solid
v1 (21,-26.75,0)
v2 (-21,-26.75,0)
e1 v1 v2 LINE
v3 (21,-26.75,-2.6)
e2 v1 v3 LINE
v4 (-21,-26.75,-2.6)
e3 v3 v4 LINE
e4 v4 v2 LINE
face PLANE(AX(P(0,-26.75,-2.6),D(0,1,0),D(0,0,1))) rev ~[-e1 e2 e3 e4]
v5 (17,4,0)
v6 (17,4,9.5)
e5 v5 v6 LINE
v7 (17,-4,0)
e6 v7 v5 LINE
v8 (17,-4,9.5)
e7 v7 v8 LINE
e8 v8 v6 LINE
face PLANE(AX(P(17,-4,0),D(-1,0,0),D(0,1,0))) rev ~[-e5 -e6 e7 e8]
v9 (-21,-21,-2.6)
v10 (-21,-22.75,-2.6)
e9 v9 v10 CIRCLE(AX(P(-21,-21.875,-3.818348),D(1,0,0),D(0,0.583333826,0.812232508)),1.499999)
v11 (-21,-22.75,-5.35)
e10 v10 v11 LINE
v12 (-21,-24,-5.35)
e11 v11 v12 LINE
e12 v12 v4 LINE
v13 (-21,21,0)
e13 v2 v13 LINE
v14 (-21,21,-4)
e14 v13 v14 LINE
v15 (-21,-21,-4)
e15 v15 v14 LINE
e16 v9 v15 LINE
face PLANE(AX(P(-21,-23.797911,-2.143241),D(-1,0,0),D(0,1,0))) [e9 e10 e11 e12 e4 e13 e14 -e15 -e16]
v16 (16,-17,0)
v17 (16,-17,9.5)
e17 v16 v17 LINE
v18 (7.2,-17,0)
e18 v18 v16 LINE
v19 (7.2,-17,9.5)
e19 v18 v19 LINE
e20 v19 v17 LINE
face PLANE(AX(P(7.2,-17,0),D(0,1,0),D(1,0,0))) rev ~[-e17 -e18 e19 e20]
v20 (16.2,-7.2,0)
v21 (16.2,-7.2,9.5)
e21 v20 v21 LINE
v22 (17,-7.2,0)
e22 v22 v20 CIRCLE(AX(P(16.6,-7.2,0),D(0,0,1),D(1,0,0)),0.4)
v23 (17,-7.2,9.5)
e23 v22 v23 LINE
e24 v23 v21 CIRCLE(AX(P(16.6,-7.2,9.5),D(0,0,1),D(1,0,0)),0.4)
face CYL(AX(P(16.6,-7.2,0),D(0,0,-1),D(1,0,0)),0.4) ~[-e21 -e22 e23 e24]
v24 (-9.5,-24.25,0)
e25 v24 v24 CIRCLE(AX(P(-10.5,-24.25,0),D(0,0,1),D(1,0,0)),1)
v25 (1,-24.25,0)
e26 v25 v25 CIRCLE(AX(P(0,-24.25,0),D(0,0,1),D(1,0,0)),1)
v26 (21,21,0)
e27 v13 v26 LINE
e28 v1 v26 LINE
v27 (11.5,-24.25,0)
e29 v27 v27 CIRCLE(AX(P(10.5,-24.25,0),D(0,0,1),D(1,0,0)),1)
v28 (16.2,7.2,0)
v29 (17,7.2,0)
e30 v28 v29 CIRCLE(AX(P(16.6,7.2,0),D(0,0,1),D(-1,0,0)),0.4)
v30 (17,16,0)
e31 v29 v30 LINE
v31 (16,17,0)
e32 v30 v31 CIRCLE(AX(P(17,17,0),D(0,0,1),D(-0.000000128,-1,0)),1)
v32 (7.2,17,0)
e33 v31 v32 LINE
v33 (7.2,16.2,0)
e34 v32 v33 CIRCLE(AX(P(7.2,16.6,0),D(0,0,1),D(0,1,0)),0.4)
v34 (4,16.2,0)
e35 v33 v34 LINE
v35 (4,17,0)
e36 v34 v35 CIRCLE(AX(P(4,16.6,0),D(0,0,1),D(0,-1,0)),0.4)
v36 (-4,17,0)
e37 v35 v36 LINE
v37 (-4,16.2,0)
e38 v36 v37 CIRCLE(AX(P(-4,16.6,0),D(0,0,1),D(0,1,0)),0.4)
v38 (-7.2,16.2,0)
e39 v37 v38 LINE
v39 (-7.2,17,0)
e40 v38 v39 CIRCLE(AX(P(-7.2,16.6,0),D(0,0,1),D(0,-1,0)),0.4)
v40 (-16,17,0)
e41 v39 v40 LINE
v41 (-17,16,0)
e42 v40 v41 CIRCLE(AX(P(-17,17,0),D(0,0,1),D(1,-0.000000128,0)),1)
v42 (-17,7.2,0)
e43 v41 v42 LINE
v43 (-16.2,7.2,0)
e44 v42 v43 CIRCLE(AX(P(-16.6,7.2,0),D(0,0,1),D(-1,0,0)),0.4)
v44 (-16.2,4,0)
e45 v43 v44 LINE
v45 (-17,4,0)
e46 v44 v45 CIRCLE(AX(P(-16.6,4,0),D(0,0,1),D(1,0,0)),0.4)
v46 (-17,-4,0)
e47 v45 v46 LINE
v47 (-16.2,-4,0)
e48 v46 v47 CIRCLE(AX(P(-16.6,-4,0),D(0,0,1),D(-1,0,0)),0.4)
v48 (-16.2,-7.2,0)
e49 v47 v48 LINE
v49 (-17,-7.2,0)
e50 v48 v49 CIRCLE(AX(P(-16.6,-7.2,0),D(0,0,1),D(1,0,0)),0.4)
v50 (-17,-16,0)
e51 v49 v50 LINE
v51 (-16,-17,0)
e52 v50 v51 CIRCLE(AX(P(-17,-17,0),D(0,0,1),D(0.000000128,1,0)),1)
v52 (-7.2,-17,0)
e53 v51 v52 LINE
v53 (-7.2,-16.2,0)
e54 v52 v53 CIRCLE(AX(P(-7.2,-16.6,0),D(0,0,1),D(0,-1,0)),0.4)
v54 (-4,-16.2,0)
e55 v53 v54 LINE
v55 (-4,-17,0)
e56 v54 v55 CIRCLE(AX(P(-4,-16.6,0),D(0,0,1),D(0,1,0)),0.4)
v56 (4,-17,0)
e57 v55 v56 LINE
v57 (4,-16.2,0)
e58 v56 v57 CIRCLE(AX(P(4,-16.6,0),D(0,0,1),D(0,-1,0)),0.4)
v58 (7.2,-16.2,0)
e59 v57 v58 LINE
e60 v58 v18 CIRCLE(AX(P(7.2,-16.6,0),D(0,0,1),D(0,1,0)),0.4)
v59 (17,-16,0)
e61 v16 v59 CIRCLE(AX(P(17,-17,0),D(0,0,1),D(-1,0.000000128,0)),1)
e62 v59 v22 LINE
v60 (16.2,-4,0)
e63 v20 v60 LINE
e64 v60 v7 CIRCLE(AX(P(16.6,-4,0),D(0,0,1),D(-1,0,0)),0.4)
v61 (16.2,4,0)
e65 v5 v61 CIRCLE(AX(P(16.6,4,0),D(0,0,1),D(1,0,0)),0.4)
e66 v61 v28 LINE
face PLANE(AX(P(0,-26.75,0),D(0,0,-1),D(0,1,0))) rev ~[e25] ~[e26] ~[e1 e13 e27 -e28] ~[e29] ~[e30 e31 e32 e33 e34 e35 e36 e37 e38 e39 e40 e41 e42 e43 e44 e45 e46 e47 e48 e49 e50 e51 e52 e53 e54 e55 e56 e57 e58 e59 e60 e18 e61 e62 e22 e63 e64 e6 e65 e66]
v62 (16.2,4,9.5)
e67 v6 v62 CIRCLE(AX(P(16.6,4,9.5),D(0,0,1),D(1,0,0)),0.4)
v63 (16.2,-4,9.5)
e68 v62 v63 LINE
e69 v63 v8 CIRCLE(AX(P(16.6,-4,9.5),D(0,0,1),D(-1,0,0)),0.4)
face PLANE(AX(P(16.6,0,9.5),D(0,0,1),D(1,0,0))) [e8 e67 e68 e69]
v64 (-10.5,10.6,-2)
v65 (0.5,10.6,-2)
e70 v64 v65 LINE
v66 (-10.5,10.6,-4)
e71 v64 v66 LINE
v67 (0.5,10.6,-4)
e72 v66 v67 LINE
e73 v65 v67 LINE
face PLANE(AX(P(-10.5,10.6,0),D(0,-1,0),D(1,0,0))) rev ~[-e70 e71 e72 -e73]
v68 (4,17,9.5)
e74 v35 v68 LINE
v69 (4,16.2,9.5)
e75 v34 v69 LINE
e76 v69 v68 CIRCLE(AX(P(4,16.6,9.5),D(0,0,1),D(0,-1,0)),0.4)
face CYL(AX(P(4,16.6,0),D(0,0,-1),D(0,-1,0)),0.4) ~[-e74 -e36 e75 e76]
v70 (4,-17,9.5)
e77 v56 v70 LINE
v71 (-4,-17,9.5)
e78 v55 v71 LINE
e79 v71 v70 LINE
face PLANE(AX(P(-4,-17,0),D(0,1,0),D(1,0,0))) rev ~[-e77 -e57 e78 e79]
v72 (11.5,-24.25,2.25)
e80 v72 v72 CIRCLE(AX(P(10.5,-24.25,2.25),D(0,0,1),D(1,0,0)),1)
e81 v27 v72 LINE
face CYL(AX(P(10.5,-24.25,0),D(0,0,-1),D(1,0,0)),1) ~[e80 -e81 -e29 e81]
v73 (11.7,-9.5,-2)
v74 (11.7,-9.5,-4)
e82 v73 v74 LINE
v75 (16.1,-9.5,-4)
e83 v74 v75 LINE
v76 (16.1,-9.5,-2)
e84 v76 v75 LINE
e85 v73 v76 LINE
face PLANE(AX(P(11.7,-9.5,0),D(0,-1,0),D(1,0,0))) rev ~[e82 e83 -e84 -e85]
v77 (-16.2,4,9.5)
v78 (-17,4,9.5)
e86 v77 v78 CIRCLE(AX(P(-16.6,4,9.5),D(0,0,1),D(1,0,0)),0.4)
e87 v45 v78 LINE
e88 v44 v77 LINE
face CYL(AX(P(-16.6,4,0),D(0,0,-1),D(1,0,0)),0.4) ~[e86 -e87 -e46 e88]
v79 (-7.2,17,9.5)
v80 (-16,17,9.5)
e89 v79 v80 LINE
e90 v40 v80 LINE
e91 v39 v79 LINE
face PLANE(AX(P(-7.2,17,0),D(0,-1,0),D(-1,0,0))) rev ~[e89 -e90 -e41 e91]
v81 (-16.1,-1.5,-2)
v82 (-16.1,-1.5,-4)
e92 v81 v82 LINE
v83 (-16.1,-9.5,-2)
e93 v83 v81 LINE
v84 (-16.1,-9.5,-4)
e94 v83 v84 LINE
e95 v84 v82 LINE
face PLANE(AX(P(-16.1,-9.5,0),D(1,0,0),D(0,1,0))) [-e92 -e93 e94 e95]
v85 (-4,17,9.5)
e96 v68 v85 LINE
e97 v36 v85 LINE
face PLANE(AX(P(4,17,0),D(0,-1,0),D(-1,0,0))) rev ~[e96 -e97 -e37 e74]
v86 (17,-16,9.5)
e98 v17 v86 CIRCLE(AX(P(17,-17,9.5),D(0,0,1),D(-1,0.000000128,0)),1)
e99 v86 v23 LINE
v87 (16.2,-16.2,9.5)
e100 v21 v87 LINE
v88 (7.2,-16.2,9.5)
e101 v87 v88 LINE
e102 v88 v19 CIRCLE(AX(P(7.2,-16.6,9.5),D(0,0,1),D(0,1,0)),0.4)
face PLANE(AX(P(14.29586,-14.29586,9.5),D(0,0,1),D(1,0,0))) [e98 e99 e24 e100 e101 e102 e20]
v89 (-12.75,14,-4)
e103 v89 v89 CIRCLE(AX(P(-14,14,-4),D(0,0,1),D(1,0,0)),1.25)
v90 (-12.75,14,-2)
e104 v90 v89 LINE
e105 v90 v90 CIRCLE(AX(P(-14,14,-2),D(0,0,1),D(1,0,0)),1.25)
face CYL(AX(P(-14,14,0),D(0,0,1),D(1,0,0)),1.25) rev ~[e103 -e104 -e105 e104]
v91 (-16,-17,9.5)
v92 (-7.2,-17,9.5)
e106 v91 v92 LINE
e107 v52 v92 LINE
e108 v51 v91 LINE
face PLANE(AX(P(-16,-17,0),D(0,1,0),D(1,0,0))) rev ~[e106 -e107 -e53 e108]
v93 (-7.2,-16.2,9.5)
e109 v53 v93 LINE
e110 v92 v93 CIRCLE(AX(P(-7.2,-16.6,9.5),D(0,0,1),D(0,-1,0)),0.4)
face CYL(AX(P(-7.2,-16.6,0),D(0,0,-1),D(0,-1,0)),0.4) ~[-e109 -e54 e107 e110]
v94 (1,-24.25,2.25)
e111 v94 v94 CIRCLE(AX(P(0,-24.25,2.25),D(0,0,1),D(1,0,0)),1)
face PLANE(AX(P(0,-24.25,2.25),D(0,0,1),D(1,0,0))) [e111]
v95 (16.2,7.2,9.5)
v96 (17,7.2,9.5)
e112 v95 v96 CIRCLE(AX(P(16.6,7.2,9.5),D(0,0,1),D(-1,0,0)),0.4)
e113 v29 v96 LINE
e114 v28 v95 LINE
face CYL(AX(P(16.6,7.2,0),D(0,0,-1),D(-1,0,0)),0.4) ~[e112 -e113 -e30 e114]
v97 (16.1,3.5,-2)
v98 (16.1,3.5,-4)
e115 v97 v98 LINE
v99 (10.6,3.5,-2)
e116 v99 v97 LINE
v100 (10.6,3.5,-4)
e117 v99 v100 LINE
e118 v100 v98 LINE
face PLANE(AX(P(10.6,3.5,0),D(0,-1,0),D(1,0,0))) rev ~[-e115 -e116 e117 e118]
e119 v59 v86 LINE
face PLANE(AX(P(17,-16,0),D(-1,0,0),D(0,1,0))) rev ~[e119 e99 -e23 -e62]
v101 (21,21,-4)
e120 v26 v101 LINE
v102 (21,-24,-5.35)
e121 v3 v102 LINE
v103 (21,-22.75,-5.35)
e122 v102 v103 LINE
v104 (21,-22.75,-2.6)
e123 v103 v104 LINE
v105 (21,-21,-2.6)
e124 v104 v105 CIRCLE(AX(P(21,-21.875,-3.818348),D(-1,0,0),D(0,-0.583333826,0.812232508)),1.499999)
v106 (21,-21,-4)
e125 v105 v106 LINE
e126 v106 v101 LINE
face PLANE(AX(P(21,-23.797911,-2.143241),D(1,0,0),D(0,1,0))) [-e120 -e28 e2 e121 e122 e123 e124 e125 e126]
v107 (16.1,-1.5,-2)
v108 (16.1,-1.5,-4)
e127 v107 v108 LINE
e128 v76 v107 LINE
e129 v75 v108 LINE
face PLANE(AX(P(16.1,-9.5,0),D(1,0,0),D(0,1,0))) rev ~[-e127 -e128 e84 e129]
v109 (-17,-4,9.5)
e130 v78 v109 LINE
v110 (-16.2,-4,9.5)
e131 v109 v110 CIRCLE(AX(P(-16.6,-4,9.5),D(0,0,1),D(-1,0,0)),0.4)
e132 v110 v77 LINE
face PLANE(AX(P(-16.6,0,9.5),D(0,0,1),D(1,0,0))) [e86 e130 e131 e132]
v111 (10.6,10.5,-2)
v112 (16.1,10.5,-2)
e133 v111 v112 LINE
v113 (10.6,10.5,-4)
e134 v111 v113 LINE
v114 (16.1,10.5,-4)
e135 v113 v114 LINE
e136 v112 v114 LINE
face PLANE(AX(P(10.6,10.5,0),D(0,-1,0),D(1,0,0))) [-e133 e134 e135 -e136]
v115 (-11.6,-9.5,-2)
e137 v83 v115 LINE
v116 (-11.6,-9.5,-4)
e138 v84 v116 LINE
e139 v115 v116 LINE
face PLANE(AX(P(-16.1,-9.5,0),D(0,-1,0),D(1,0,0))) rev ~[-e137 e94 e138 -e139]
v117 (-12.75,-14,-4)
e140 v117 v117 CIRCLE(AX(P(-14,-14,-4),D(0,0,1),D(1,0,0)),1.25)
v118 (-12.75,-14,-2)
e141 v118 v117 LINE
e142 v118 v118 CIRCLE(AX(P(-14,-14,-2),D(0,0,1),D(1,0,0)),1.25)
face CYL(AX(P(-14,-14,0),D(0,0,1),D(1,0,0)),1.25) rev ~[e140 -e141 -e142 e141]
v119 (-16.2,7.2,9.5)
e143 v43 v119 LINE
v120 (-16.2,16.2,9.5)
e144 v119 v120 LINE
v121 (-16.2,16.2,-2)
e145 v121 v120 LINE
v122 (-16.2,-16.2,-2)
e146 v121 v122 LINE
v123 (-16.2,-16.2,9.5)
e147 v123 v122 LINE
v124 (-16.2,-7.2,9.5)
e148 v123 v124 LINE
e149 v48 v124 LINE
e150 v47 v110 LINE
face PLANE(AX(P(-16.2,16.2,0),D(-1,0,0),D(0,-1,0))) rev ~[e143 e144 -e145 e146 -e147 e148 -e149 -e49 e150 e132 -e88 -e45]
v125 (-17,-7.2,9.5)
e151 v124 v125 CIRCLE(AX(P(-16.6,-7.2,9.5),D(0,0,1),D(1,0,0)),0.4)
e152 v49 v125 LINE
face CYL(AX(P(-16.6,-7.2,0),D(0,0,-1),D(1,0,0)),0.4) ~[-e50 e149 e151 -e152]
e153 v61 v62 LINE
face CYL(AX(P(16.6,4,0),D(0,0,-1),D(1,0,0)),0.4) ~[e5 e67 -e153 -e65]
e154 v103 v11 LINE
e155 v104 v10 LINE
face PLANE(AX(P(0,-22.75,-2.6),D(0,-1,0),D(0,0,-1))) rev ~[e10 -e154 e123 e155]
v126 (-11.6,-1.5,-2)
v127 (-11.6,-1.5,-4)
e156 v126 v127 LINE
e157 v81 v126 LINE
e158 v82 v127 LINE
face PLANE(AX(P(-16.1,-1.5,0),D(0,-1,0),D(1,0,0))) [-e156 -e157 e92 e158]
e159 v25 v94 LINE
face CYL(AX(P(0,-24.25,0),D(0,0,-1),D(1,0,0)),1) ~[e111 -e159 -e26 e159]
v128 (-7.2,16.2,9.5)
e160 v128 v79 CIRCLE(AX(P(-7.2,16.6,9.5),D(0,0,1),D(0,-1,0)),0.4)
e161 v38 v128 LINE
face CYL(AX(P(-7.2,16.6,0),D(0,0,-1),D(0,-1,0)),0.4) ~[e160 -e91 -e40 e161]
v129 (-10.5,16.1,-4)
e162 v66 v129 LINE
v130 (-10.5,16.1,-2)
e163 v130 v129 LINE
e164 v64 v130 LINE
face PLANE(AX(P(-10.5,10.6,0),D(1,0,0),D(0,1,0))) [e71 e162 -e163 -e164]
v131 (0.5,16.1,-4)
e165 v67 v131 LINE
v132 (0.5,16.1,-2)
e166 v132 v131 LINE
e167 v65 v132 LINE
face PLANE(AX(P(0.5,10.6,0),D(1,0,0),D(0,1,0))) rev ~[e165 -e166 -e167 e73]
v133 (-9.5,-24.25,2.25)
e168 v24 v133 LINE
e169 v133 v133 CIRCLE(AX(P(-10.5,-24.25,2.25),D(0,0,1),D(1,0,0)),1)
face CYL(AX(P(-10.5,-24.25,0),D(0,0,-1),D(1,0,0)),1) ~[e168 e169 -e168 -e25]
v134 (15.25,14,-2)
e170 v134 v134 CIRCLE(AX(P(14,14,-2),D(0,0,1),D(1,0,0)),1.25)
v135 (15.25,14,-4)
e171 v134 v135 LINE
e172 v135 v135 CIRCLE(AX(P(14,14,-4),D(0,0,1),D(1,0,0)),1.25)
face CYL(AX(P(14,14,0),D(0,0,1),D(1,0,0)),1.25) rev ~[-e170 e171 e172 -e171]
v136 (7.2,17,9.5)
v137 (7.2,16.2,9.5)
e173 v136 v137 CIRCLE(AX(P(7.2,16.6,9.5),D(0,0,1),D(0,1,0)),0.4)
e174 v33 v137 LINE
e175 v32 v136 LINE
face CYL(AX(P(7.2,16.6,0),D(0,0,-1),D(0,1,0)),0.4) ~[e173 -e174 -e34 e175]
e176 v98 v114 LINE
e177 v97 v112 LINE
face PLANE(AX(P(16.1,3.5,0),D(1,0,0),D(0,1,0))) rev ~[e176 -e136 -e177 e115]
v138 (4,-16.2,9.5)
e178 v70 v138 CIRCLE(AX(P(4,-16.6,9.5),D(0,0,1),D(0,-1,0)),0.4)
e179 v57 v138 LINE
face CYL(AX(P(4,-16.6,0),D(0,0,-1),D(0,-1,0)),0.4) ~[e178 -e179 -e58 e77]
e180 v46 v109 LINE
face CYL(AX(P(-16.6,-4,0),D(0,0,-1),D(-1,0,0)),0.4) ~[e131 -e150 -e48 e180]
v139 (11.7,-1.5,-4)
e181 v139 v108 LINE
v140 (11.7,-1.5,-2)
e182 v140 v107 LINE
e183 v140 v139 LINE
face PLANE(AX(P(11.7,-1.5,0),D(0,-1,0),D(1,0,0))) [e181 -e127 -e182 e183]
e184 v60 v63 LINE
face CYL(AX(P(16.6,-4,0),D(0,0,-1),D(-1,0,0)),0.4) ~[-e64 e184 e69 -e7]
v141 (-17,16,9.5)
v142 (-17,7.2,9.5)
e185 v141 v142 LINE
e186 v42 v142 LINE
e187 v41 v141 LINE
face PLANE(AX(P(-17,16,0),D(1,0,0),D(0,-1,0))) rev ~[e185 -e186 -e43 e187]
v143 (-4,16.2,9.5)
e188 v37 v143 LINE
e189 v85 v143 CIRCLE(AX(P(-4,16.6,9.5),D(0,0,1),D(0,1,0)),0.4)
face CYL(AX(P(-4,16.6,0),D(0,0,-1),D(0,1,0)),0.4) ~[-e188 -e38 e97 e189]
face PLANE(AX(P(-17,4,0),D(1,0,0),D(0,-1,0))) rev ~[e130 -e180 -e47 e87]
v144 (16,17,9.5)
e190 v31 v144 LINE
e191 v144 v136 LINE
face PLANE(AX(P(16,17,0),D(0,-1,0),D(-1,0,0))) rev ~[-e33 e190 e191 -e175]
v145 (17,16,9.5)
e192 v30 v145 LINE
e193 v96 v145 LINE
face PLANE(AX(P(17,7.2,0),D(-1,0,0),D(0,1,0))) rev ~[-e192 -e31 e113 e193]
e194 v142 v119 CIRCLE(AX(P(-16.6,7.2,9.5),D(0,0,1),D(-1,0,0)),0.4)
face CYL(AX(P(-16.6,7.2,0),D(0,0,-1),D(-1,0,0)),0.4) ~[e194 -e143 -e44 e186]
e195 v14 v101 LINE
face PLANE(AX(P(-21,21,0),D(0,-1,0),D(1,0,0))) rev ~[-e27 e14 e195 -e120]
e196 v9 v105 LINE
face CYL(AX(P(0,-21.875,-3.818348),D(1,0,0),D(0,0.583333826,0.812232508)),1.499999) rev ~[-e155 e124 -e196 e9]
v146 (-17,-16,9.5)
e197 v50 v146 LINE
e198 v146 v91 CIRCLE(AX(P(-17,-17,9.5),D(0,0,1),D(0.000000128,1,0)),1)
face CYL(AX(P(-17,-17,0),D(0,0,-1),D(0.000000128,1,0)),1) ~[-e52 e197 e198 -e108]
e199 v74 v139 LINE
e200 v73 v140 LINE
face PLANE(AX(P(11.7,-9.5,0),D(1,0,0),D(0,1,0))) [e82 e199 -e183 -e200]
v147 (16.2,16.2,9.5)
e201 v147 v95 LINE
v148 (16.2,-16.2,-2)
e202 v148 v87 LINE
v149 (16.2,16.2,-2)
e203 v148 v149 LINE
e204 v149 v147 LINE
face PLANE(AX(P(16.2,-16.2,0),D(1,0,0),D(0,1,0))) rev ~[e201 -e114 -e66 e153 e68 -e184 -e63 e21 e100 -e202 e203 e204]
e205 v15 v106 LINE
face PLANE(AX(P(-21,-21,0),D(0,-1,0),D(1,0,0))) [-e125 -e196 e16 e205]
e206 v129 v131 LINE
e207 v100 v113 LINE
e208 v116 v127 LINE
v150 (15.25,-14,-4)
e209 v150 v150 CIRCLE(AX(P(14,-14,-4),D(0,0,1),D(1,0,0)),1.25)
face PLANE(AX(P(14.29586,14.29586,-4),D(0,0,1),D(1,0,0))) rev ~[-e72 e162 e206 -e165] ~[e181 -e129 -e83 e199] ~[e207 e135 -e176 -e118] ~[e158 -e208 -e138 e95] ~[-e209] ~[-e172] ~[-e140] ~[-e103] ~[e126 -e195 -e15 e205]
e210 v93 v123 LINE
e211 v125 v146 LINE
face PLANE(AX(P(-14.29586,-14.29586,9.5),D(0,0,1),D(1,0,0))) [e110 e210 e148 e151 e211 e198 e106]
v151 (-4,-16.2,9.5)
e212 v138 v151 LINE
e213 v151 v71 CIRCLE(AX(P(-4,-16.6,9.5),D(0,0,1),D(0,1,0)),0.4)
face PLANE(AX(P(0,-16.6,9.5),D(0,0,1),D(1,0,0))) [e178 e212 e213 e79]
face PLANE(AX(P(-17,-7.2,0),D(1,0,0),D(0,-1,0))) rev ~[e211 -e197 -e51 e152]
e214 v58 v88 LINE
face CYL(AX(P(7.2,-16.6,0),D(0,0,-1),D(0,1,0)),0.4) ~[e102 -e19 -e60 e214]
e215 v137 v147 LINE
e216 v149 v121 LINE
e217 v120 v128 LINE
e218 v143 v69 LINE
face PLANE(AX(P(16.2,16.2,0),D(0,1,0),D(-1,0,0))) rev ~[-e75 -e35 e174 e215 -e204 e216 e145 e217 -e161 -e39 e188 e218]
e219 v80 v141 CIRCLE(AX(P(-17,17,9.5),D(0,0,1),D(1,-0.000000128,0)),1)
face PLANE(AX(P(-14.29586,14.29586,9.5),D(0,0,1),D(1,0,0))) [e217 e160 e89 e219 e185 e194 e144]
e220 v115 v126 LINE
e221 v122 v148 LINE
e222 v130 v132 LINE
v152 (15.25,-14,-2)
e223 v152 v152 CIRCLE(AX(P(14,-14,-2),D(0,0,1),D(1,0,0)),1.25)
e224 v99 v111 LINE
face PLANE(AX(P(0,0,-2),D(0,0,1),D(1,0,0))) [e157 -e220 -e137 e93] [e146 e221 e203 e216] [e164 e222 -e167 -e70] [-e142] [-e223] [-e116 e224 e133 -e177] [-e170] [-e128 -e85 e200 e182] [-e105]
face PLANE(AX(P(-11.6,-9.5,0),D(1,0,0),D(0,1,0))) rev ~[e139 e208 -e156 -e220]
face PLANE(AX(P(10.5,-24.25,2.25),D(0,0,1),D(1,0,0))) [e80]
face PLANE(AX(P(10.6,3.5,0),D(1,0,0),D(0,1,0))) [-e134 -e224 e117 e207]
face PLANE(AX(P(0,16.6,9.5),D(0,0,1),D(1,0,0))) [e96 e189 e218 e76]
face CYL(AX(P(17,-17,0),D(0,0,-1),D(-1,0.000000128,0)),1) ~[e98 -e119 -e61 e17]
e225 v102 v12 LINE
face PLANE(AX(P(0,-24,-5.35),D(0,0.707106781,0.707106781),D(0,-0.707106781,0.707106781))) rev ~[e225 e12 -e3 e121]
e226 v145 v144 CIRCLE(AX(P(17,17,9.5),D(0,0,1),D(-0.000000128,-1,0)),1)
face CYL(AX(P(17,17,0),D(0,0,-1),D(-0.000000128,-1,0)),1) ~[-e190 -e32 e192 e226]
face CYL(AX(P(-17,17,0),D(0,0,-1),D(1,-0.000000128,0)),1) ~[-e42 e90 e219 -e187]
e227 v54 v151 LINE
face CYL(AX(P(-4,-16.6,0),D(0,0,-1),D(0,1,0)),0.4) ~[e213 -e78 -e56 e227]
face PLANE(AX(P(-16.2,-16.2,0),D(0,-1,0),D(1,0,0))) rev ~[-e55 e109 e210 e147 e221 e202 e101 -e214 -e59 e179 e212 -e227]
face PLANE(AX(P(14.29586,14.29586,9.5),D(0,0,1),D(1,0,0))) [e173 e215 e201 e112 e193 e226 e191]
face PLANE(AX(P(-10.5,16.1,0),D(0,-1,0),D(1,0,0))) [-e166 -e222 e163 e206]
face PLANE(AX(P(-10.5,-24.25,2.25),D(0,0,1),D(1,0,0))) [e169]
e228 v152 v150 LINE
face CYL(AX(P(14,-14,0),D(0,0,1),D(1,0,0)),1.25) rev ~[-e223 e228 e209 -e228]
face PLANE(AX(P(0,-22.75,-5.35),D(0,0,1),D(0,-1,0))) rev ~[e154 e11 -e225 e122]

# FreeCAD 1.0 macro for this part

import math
import FreeCAD as App
import Part
import Sketcher

V = App.Vector
Q = App.Units.Quantity

doc = App.newDocument("Part")
body = doc.addObject("PartDesign::Body", "Body")

sketch1 = body.newObject("Sketcher::SketchObject", "Sketch")
sketch1.AttachmentSupport = (doc.getObject("XY_Plane"), [""])
sketch1.MapMode = "FlatFace"
sketch1.addGeometry([
    Part.LineSegment(V(-21, 21, 0), V(-21, -21, 0)),
    Part.LineSegment(V(-21, -21, 0), V(21, -21, 0)),
    Part.LineSegment(V(21, -21, 0), V(21, 21, 0)),
    Part.LineSegment(V(21, 21, 0), V(-21, 21, 0)),
    Part.Circle(V(-14, -14, 0), V(0, 0, 1), 1.25),
    Part.LineSegment(V(-11.6, -9.5, 0), V(-16.1, -9.5, 0)),
    Part.LineSegment(V(-16.1, -9.5, 0), V(-16.1, -1.5, 0)),
    Part.LineSegment(V(-16.1, -1.5, 0), V(-11.6, -1.5, 0)),
    Part.LineSegment(V(-11.6, -1.5, 0), V(-11.6, -9.5, 0)),
    Part.Circle(V(14, -14, 0), V(0, 0, 1), 1.25),
    Part.LineSegment(V(16.1, -9.5, 0), V(11.7, -9.5, 0)),
    Part.LineSegment(V(11.7, -9.5, 0), V(11.7, -1.5, 0)),
    Part.LineSegment(V(11.7, -1.5, 0), V(16.1, -1.5, 0)),
    Part.LineSegment(V(16.1, -1.5, 0), V(16.1, -9.5, 0)),
    Part.Circle(V(-14, 14, 0), V(0, 0, 1), 1.25),
    Part.LineSegment(V(0.5, 10.6, 0), V(-10.5, 10.6, 0)),
    Part.LineSegment(V(-10.5, 10.6, 0), V(-10.5, 16.1, 0)),
    Part.LineSegment(V(-10.5, 16.1, 0), V(0.5, 16.1, 0)),
    Part.LineSegment(V(0.5, 16.1, 0), V(0.5, 10.6, 0)),
    Part.LineSegment(V(16.1, 3.5, 0), V(10.6, 3.5, 0)),
    Part.LineSegment(V(10.6, 3.5, 0), V(10.6, 10.5, 0)),
    Part.LineSegment(V(10.6, 10.5, 0), V(16.1, 10.5, 0)),
    Part.LineSegment(V(16.1, 10.5, 0), V(16.1, 3.5, 0)),
    Part.Circle(V(14, 14, 0), V(0, 0, 1), 1.25),
], False)
sketch1.addConstraint([
    Sketcher.Constraint("Coincident", 0, 2, 1, 1),
    Sketcher.Constraint("Coincident", 1, 2, 2, 1),
    Sketcher.Constraint("Coincident", 2, 2, 3, 1),
    Sketcher.Constraint("Coincident", 3, 2, 0, 1),
    Sketcher.Constraint("Coincident", 5, 2, 6, 1),
    Sketcher.Constraint("Coincident", 6, 2, 7, 1),
    Sketcher.Constraint("Coincident", 7, 2, 8, 1),
    Sketcher.Constraint("Coincident", 8, 2, 5, 1),
    Sketcher.Constraint("Coincident", 10, 2, 11, 1),
    Sketcher.Constraint("Coincident", 11, 2, 12, 1),
    Sketcher.Constraint("Coincident", 12, 2, 13, 1),
    Sketcher.Constraint("Coincident", 13, 2, 10, 1),
    Sketcher.Constraint("Coincident", 15, 2, 16, 1),
    Sketcher.Constraint("Coincident", 16, 2, 17, 1),
    Sketcher.Constraint("Coincident", 17, 2, 18, 1),
    Sketcher.Constraint("Coincident", 18, 2, 15, 1),
    Sketcher.Constraint("Coincident", 19, 2, 20, 1),
    Sketcher.Constraint("Coincident", 20, 2, 21, 1),
    Sketcher.Constraint("Coincident", 21, 2, 22, 1),
    Sketcher.Constraint("Coincident", 22, 2, 19, 1),
    Sketcher.Constraint("Vertical", 0),
    Sketcher.Constraint("Horizontal", 1),
    Sketcher.Constraint("Vertical", 2),
    Sketcher.Constraint("Horizontal", 3),
    Sketcher.Constraint("Horizontal", 5),
    Sketcher.Constraint("Vertical", 6),
    Sketcher.Constraint("Horizontal", 7),
    Sketcher.Constraint("Vertical", 8),
    Sketcher.Constraint("Horizontal", 10),
    Sketcher.Constraint("Vertical", 11),
    Sketcher.Constraint("Horizontal", 12),
    Sketcher.Constraint("Vertical", 13),
    Sketcher.Constraint("Horizontal", 15),
    Sketcher.Constraint("Vertical", 16),
    Sketcher.Constraint("Horizontal", 17),
    Sketcher.Constraint("Vertical", 18),
    Sketcher.Constraint("Horizontal", 19),
    Sketcher.Constraint("Vertical", 20),
    Sketcher.Constraint("Horizontal", 21),
    Sketcher.Constraint("Vertical", 22),
    Sketcher.Constraint("Equal", 4, 9),
    Sketcher.Constraint("Equal", 9, 14),
    Sketcher.Constraint("Equal", 14, 23),
    Sketcher.Constraint("Symmetric", 9, 3, 14, 3, -1, 1),
    Sketcher.Constraint("Symmetric", 4, 3, 23, 3, -1, 1),
    Sketcher.Constraint("Symmetric", 0, 2, 2, 2, -1, 1),
    Sketcher.Constraint("Symmetric", 4, 3, 9, 3, -2),
    Sketcher.Constraint("Symmetric", 6, 2, 12, 2, -2),
    Sketcher.Constraint("Horizontal", 8, 2, 10, 2),
    Sketcher.Constraint("Vertical", 13, 2, 21, 2),
    Sketcher.Constraint("Equal", 3, 0),
    Sketcher.Constraint("Equal", 21, 16),
    Sketcher.Constraint("Diameter", 4, 2.5),
    Sketcher.Constraint("DistanceX", 1, 1, 1, 2, 42.0),
    Sketcher.Constraint("DistanceX", 15, 2, 15, 1, 11.0),
    Sketcher.Constraint("DistanceY", 6, 1, 6, 2, 8.0),
    Sketcher.Constraint("DistanceY", 20, 1, 20, 2, 7.0),
    Sketcher.Constraint("DistanceX", 5, 2, 5, 1, 4.5),
    Sketcher.Constraint("DistanceX", 10, 2, 10, 1, 4.4),
    Sketcher.Constraint("DistanceX", 19, 2, 19, 1, 5.5),
    Sketcher.Constraint("DistanceX", 4, 3, -1, 1, 14.0),
    Sketcher.Constraint("DistanceY", 4, 3, -1, 1, 14.0),
    Sketcher.Constraint("DistanceY", 11, 2, 19, 2, 5.0),
    Sketcher.Constraint("DistanceX", 5, 2, -1, 1, 16.1),
    Sketcher.Constraint("DistanceY", 5, 2, -1, 1, 9.5),
    Sketcher.Constraint("DistanceX", 15, 2, -1, 1, 10.5),
    Sketcher.Constraint("DistanceY", -1, 1, 15, 2, 10.6),
])
pad1 = body.newObject("PartDesign::Pad", "Pad")
pad1.Profile = sketch1
pad1.Length = 4
pad1.Reversed = True

sketch2 = body.newObject("Sketcher::SketchObject", "Sketch001")
sketch2.AttachmentSupport = (doc.getObject("YZ_Plane"), [""])
sketch2.MapMode = "FlatFace"
sketch2.addGeometry([
    Part.LineSegment(V(-21, -2.6, 0), V(-21, 0, 0)),
    Part.LineSegment(V(-21, 0, 0), V(-26.75, 0, 0)),
    Part.LineSegment(V(-26.75, 0, 0), V(-26.75, -2.6, 0)),
    Part.LineSegment(V(-26.75, -2.6, 0), V(-24, -5.35, 0)),
    Part.LineSegment(V(-24, -5.35, 0), V(-22.75, -5.35, 0)),
    Part.LineSegment(V(-22.75, -5.35, 0), V(-22.75, -2.6, 0)),
    Part.ArcOfCircle(Part.Circle(V(-21.875, -3.818348, 0), V(0, 0, 1), 1.499999), math.radians(54.314631), math.radians(125.685369)),
], False)
sketch2.addConstraint([
    Sketcher.Constraint("Coincident", 0, 2, 1, 1),
    Sketcher.Constraint("Coincident", 1, 2, 2, 1),
    Sketcher.Constraint("Coincident", 2, 2, 3, 1),
    Sketcher.Constraint("Coincident", 3, 2, 4, 1),
    Sketcher.Constraint("Coincident", 4, 2, 5, 1),
    Sketcher.Constraint("Coincident", 5, 2, 6, 2),
    Sketcher.Constraint("Coincident", 6, 1, 0, 1),
    Sketcher.Constraint("Vertical", 0),
    Sketcher.Constraint("Horizontal", 1),
    Sketcher.Constraint("Vertical", 2),
    Sketcher.Constraint("Horizontal", 4),
    Sketcher.Constraint("Vertical", 5),
    Sketcher.Constraint("PointOnObject", 0, 2, -1),
    Sketcher.Constraint("Horizontal", 2, 2, 5, 2),
    Sketcher.Constraint("Horizontal", 5, 2, 6, 1),
    Sketcher.Constraint("Radius", 6, 1.499999),
    Sketcher.Constraint("Angle", 3, Q("-45 deg")),
    Sketcher.Constraint("DistanceY", 0, 1, 0, 2, 2.6),
    Sketcher.Constraint("DistanceX", 0, 2, -1, 1, 21.0),
    Sketcher.Constraint("DistanceX", 3, 2, -1, 1, 24.0),
    Sketcher.Constraint("DistanceX", 2, 2, 4, 2, 4.0),
    Sketcher.Constraint("DistanceX", 1, 2, 1, 1, 5.75),
])
pad2 = body.newObject("PartDesign::Pad", "Pad001")
pad2.Profile = sketch2
pad2.Length = 21

sketch3 = body.newObject("Sketcher::SketchObject", "Sketch002")
sketch3.AttachmentSupport = (doc.getObject("YZ_Plane"), [""])
sketch3.MapMode = "FlatFace"
sketch3.addGeometry([
    Part.LineSegment(V(-21, 0, 0), V(-21, -2.6, 0)),
    Part.ArcOfCircle(Part.Circle(V(-21.875, -3.818348, 0), V(0, 0, 1), 1.499999), math.radians(54.314631), math.radians(125.685369)),
    Part.LineSegment(V(-22.75, -2.6, 0), V(-22.75, -5.35, 0)),
    Part.LineSegment(V(-22.75, -5.35, 0), V(-24, -5.35, 0)),
    Part.LineSegment(V(-24, -5.35, 0), V(-26.75, -2.6, 0)),
    Part.LineSegment(V(-26.75, -2.6, 0), V(-26.75, 0, 0)),
    Part.LineSegment(V(-26.75, 0, 0), V(-21, 0, 0)),
], False)
sketch3.addConstraint([
    Sketcher.Constraint("Coincident", 0, 2, 1, 1),
    Sketcher.Constraint("Coincident", 1, 2, 2, 1),
    Sketcher.Constraint("Coincident", 2, 2, 3, 1),
    Sketcher.Constraint("Coincident", 3, 2, 4, 1),
    Sketcher.Constraint("Coincident", 4, 2, 5, 1),
    Sketcher.Constraint("Coincident", 5, 2, 6, 1),
    Sketcher.Constraint("Coincident", 6, 2, 0, 1),
    Sketcher.Constraint("Vertical", 0),
    Sketcher.Constraint("Vertical", 2),
    Sketcher.Constraint("Horizontal", 3),
    Sketcher.Constraint("Vertical", 5),
    Sketcher.Constraint("Horizontal", 6),
    Sketcher.Constraint("PointOnObject", 5, 2, -1),
    Sketcher.Constraint("Horizontal", 0, 2, 1, 2),
    Sketcher.Constraint("Horizontal", 1, 2, 4, 2),
    Sketcher.Constraint("Radius", 1, 1.499999),
    Sketcher.Constraint("Angle", 4, Q("135 deg")),
    Sketcher.Constraint("DistanceY", 0, 2, 0, 1, 2.6),
    Sketcher.Constraint("DistanceX", 0, 2, -1, 1, 21.0),
    Sketcher.Constraint("DistanceX", 3, 2, -1, 1, 24.0),
    Sketcher.Constraint("DistanceX", 4, 2, 1, 2, 4.0),
    Sketcher.Constraint("DistanceX", 3, 2, 3, 1, 1.25),
])
pad3 = body.newObject("PartDesign::Pad", "Pad002")
pad3.Profile = sketch3
pad3.Length = 21
pad3.Reversed = True

sketch4 = body.newObject("Sketcher::SketchObject", "Sketch003")
sketch4.AttachmentSupport = (doc.getObject("XY_Plane"), [""])
sketch4.MapMode = "FlatFace"
sketch4.addGeometry([
    Part.LineSegment(V(-16.2, 16.2, 0), V(-7.2, 16.2, 0)),
    Part.ArcOfCircle(Part.Circle(V(-7.2, 16.6, 0), V(0, 0, 1), 0.4), math.radians(-90), math.radians(90)),
    Part.LineSegment(V(-7.2, 17, 0), V(-16, 17, 0)),
    Part.ArcOfCircle(Part.Circle(V(-17, 17, 0), V(0, 0, 1), 1), math.radians(-0.000007), math.radians(270.000007)),
    Part.LineSegment(V(-17, 16, 0), V(-17, 7.2, 0)),
    Part.ArcOfCircle(Part.Circle(V(-16.6, 7.2, 0), V(0, 0, 1), 0.4), math.radians(180), math.radians(360)),
    Part.LineSegment(V(-16.2, 7.2, 0), V(-16.2, 16.2, 0)),
    Part.LineSegment(V(-16.2, -4, 0), V(-16.2, 4, 0)),
    Part.ArcOfCircle(Part.Circle(V(-16.6, 4, 0), V(0, 0, 1), 0.4), math.radians(0), math.radians(180)),
    Part.LineSegment(V(-17, 4, 0), V(-17, -4, 0)),
    Part.ArcOfCircle(Part.Circle(V(-16.6, -4, 0), V(0, 0, 1), 0.4), math.radians(180), math.radians(360)),
    Part.ArcOfCircle(Part.Circle(V(-7.2, -16.6, 0), V(0, 0, 1), 0.4), math.radians(-90), math.radians(90)),
    Part.LineSegment(V(-7.2, -16.2, 0), V(-16.2, -16.2, 0)),
    Part.LineSegment(V(-16.2, -16.2, 0), V(-16.2, -7.2, 0)),
    Part.ArcOfCircle(Part.Circle(V(-16.6, -7.2, 0), V(0, 0, 1), 0.4), math.radians(0), math.radians(180)),
    Part.LineSegment(V(-17, -7.2, 0), V(-17, -16, 0)),
    Part.ArcOfCircle(Part.Circle(V(-17, -17, 0), V(0, 0, 1), 1), math.radians(89.999993), math.radians(360.000007)),
    Part.LineSegment(V(-16, -17, 0), V(-7.2, -17, 0)),
    Part.LineSegment(V(-4, 16.2, 0), V(4, 16.2, 0)),
    Part.ArcOfCircle(Part.Circle(V(4, 16.6, 0), V(0, 0, 1), 0.4), math.radians(-90), math.radians(90)),
    Part.LineSegment(V(4, 17, 0), V(-4, 17, 0)),
    Part.ArcOfCircle(Part.Circle(V(-4, 16.6, 0), V(0, 0, 1), 0.4), math.radians(90), math.radians(270)),
    Part.LineSegment(V(16.2, 16.2, 0), V(16.2, 7.2, 0)),
    Part.ArcOfCircle(Part.Circle(V(16.6, 7.2, 0), V(0, 0, 1), 0.4), math.radians(180), math.radians(360)),
    Part.LineSegment(V(17, 7.2, 0), V(17, 16, 0)),
    Part.ArcOfCircle(Part.Circle(V(17, 17, 0), V(0, 0, 1), 1), math.radians(-90.000007), math.radians(180.000007)),
    Part.LineSegment(V(16, 17, 0), V(7.2, 17, 0)),
    Part.ArcOfCircle(Part.Circle(V(7.2, 16.6, 0), V(0, 0, 1), 0.4), math.radians(90), math.radians(270)),
    Part.LineSegment(V(7.2, 16.2, 0), V(16.2, 16.2, 0)),
    Part.LineSegment(V(17, -4, 0), V(17, 4, 0)),
    Part.ArcOfCircle(Part.Circle(V(16.6, 4, 0), V(0, 0, 1), 0.4), math.radians(0), math.radians(180)),
    Part.LineSegment(V(16.2, 4, 0), V(16.2, -4, 0)),
    Part.ArcOfCircle(Part.Circle(V(16.6, -4, 0), V(0, 0, 1), 0.4), math.radians(180), math.radians(360)),
    Part.ArcOfCircle(Part.Circle(V(4, -16.6, 0), V(0, 0, 1), 0.4), math.radians(-90), math.radians(90)),
    Part.LineSegment(V(4, -16.2, 0), V(-4, -16.2, 0)),
    Part.ArcOfCircle(Part.Circle(V(-4, -16.6, 0), V(0, 0, 1), 0.4), math.radians(90), math.radians(270)),
    Part.LineSegment(V(-4, -17, 0), V(4, -17, 0)),
    Part.ArcOfCircle(Part.Circle(V(16.6, -7.2, 0), V(0, 0, 1), 0.4), math.radians(0), math.radians(180)),
    Part.LineSegment(V(16.2, -7.2, 0), V(16.2, -16.2, 0)),
    Part.LineSegment(V(16.2, -16.2, 0), V(7.2, -16.2, 0)),
    Part.ArcOfCircle(Part.Circle(V(7.2, -16.6, 0), V(0, 0, 1), 0.4), math.radians(90), math.radians(270)),
    Part.LineSegment(V(7.2, -17, 0), V(16, -17, 0)),
    Part.ArcOfCircle(Part.Circle(V(17, -17, 0), V(0, 0, 1), 1), math.radians(179.999993), math.radians(450.000007)),
    Part.LineSegment(V(17, -16, 0), V(17, -7.2, 0)),
], False)
sketch4.addConstraint([
    Sketcher.Constraint("Tangent", 0, 2, 1, 1),
    Sketcher.Constraint("Tangent", 1, 2, 2, 1),
    Sketcher.Constraint("Coincident", 2, 2, 3, 1),
    Sketcher.Constraint("Coincident", 3, 2, 4, 1),
    Sketcher.Constraint("Tangent", 4, 2, 5, 1),
    Sketcher.Constraint("Tangent", 5, 2, 6, 1),
    Sketcher.Constraint("Coincident", 6, 2, 0, 1),
    Sketcher.Constraint("Tangent", 7, 2, 8, 1),
    Sketcher.Constraint("Tangent", 8, 2, 9, 1),
    Sketcher.Constraint("Tangent", 9, 2, 10, 1),
    Sketcher.Constraint("Tangent", 10, 2, 7, 1),
    Sketcher.Constraint("Tangent", 11, 2, 12, 1),
    Sketcher.Constraint("Coincident", 12, 2, 13, 1),
    Sketcher.Constraint("Tangent", 13, 2, 14, 1),
    Sketcher.Constraint("Tangent", 14, 2, 15, 1),
    Sketcher.Constraint("Coincident", 15, 2, 16, 1),
    Sketcher.Constraint("Coincident", 16, 2, 17, 1),
    Sketcher.Constraint("Tangent", 17, 2, 11, 1),
    Sketcher.Constraint("Tangent", 18, 2, 19, 1),
    Sketcher.Constraint("Tangent", 19, 2, 20, 1),
    Sketcher.Constraint("Tangent", 20, 2, 21, 1),
    Sketcher.Constraint("Tangent", 21, 2, 18, 1),
    Sketcher.Constraint("Tangent", 22, 2, 23, 1),
    Sketcher.Constraint("Tangent", 23, 2, 24, 1),
    Sketcher.Constraint("Coincident", 24, 2, 25, 1),
    Sketcher.Constraint("Coincident", 25, 2, 26, 1),
    Sketcher.Constraint("Tangent", 26, 2, 27, 1),
    Sketcher.Constraint("Tangent", 27, 2, 28, 1),
    Sketcher.Constraint("Coincident", 28, 2, 22, 1),
    Sketcher.Constraint("Tangent", 29, 2, 30, 1),
    Sketcher.Constraint("Tangent", 30, 2, 31, 1),
    Sketcher.Constraint("Tangent", 31, 2, 32, 1),
    Sketcher.Constraint("Tangent", 32, 2, 29, 1),
    Sketcher.Constraint("Tangent", 33, 2, 34, 1),
    Sketcher.Constraint("Tangent", 34, 2, 35, 1),
    Sketcher.Constraint("Tangent", 35, 2, 36, 1),
    Sketcher.Constraint("Tangent", 36, 2, 33, 1),
    Sketcher.Constraint("Tangent", 37, 2, 38, 1),
    Sketcher.Constraint("Coincident", 38, 2, 39, 1),
    Sketcher.Constraint("Tangent", 39, 2, 40, 1),
    Sketcher.Constraint("Tangent", 40, 2, 41, 1),
    Sketcher.Constraint("Coincident", 41, 2, 42, 1),
    Sketcher.Constraint("Coincident", 42, 2, 43, 1),
    Sketcher.Constraint("Tangent", 43, 2, 37, 1),
    Sketcher.Constraint("Horizontal", 0),
    Sketcher.Constraint("Horizontal", 2),
    Sketcher.Constraint("Vertical", 4),
    Sketcher.Constraint("Vertical", 6),
    Sketcher.Constraint("Vertical", 7),
    Sketcher.Constraint("Vertical", 9),
    Sketcher.Constraint("Horizontal", 12),
    Sketcher.Constraint("Vertical", 13),
    Sketcher.Constraint("Vertical", 15),
    Sketcher.Constraint("Horizontal", 17),
    Sketcher.Constraint("Horizontal", 18),
    Sketcher.Constraint("Horizontal", 20),
    Sketcher.Constraint("Vertical", 22),
    Sketcher.Constraint("Vertical", 24),
    Sketcher.Constraint("Horizontal", 26),
    Sketcher.Constraint("Horizontal", 28),
    Sketcher.Constraint("Vertical", 29),
    Sketcher.Constraint("Vertical", 31),
    Sketcher.Constraint("Horizontal", 34),
    Sketcher.Constraint("Horizontal", 36),
    Sketcher.Constraint("Vertical", 38),
    Sketcher.Constraint("Horizontal", 39),
    Sketcher.Constraint("Horizontal", 41),
    Sketcher.Constraint("Vertical", 43),
    Sketcher.Constraint("Equal", 1, 5),
    Sketcher.Constraint("Equal", 5, 8),
    Sketcher.Constraint("Equal", 10, 11),
    Sketcher.Constraint("Equal", 11, 14),
    Sketcher.Constraint("Equal", 3, 16),
    Sketcher.Constraint("Equal", 14, 19),
    Sketcher.Constraint("Equal", 21, 23),
    Sketcher.Constraint("Equal", 16, 25),
    Sketcher.Constraint("Equal", 23, 27),
    Sketcher.Constraint("Equal", 27, 30),
    Sketcher.Constraint("Equal", 32, 33),
    Sketcher.Constraint("Equal", 35, 37),
    Sketcher.Constraint("Equal", 37, 40),
    Sketcher.Constraint("Equal", 25, 42),
    Sketcher.Constraint("Symmetric", 14, 3, 23, 3, -1, 1),
    Sketcher.Constraint("Symmetric", 16, 3, 25, 3, -1, 1),
    Sketcher.Constraint("Symmetric", 11, 3, 27, 3, -1, 1),
    Sketcher.Constraint("Symmetric", 10, 3, 30, 3, -1, 1),
    Sketcher.Constraint("Symmetric", 21, 3, 33, 3, -1, 1),
    Sketcher.Constraint("Symmetric", 5, 3, 37, 3, -1, 1),
    Sketcher.Constraint("Symmetric", 1, 3, 40, 3, -1, 1),
    Sketcher.Constraint("Symmetric", 3, 3, 42, 3, -1, 1),
    Sketcher.Constraint("Symmetric", 5, 3, 23, 3, -2),
    Sketcher.Constraint("Symmetric", 3, 3, 25, 3, -2),
    Sketcher.Constraint("Symmetric", 1, 3, 27, 3, -2),
    Sketcher.Constraint("Horizontal", 1, 3, 19, 3),
    Sketcher.Constraint("Horizontal", 8, 3, 30, 3),
    Sketcher.Constraint("Horizontal", 10, 3, 32, 3),
    Sketcher.Constraint("Horizontal", 25, 3, 1, 2),
    Sketcher.Constraint("Vertical", 5, 3, 8, 3),
    Sketcher.Constraint("Vertical", 19, 3, 33, 3),
    Sketcher.Constraint("Vertical", 21, 3, 35, 3),
    Sketcher.Constraint("Vertical", 16, 3, 3, 2),
    Sketcher.Constraint("Equal", 41, 4),
    Sketcher.Constraint("Equal", 36, 7),
    Sketcher.Constraint("Radius", 3, 1.0),
    Sketcher.Constraint("Radius", 1, 0.4),
    Sketcher.Constraint("DistanceX", 0, 1, 0, 2, 9.0),
    Sketcher.Constraint("DistanceX", 18, 1, 18, 2, 8.0),
    Sketcher.Constraint("DistanceX", 3, 3, -1, 1, 17.0),
    Sketcher.Constraint("DistanceY", -1, 1, 3, 3, 17.0),
])
pad4 = body.newObject("PartDesign::Pad", "Pad003")
pad4.Profile = sketch4
pad4.Length = 9.5

sketch5 = body.newObject("Sketcher::SketchObject", "Sketch004")
sketch5.AttachmentSupport = (doc.getObject("XY_Plane"), [""])
sketch5.MapMode = "FlatFace"
sketch5.addGeometry([
    Part.Circle(V(-10.5, -24.25, 0), V(0, 0, 1), 1),
    Part.Circle(V(0, -24.25, 0), V(0, 0, 1), 1),
    Part.Circle(V(10.5, -24.25, 0), V(0, 0, 1), 1),
], False)
sketch5.addConstraint([
    Sketcher.Constraint("Equal", 0, 1),
    Sketcher.Constraint("Equal", 1, 2),
    Sketcher.Constraint("Symmetric", 0, 3, 2, 3, -2),
    Sketcher.Constraint("PointOnObject", 1, 3, -2),
    Sketcher.Constraint("Horizontal", 0, 3, 1, 3),
    Sketcher.Constraint("Diameter", 0, 2.0),
    Sketcher.Constraint("DistanceX", 0, 3, 2, 3, 21.0),
    Sketcher.Constraint("DistanceY", 0, 3, -1, 1, 24.25),
])
pad5 = body.newObject("PartDesign::Pad", "Pad004")
pad5.Profile = sketch5
pad5.Length = 2.25

sketch6 = body.newObject("Sketcher::SketchObject", "Sketch005")
sketch6.AttachmentSupport = (doc.getObject("XY_Plane"), [""])
sketch6.MapMode = "FlatFace"
sketch6.addGeometry([
    Part.LineSegment(V(16.2, 16.2, 0), V(-16.2, 16.2, 0)),
    Part.LineSegment(V(-16.2, 16.2, 0), V(-16.2, -16.2, 0)),
    Part.LineSegment(V(-16.2, -16.2, 0), V(16.2, -16.2, 0)),
    Part.LineSegment(V(16.2, -16.2, 0), V(16.2, 16.2, 0)),
    Part.Circle(V(-14, -14, 0), V(0, 0, 1), 1.25),
    Part.LineSegment(V(-11.6, -9.5, 0), V(-16.1, -9.5, 0)),
    Part.LineSegment(V(-16.1, -9.5, 0), V(-16.1, -1.5, 0)),
    Part.LineSegment(V(-16.1, -1.5, 0), V(-11.6, -1.5, 0)),
    Part.LineSegment(V(-11.6, -1.5, 0), V(-11.6, -9.5, 0)),
    Part.Circle(V(14, -14, 0), V(0, 0, 1), 1.25),
    Part.LineSegment(V(16.1, -9.5, 0), V(11.7, -9.5, 0)),
    Part.LineSegment(V(11.7, -9.5, 0), V(11.7, -1.5, 0)),
    Part.LineSegment(V(11.7, -1.5, 0), V(16.1, -1.5, 0)),
    Part.LineSegment(V(16.1, -1.5, 0), V(16.1, -9.5, 0)),
    Part.Circle(V(-14, 14, 0), V(0, 0, 1), 1.25),
    Part.LineSegment(V(0.5, 10.6, 0), V(-10.5, 10.6, 0)),
    Part.LineSegment(V(-10.5, 10.6, 0), V(-10.5, 16.1, 0)),
    Part.LineSegment(V(-10.5, 16.1, 0), V(0.5, 16.1, 0)),
    Part.LineSegment(V(0.5, 16.1, 0), V(0.5, 10.6, 0)),
    Part.LineSegment(V(16.1, 3.5, 0), V(10.6, 3.5, 0)),
    Part.LineSegment(V(10.6, 3.5, 0), V(10.6, 10.5, 0)),
    Part.LineSegment(V(10.6, 10.5, 0), V(16.1, 10.5, 0)),
    Part.LineSegment(V(16.1, 10.5, 0), V(16.1, 3.5, 0)),
    Part.Circle(V(14, 14, 0), V(0, 0, 1), 1.25),
], False)
sketch6.addConstraint([
    Sketcher.Constraint("Coincident", 0, 2, 1, 1),
    Sketcher.Constraint("Coincident", 1, 2, 2, 1),
    Sketcher.Constraint("Coincident", 2, 2, 3, 1),
    Sketcher.Constraint("Coincident", 3, 2, 0, 1),
    Sketcher.Constraint("Coincident", 5, 2, 6, 1),
    Sketcher.Constraint("Coincident", 6, 2, 7, 1),
    Sketcher.Constraint("Coincident", 7, 2, 8, 1),
    Sketcher.Constraint("Coincident", 8, 2, 5, 1),
    Sketcher.Constraint("Coincident", 10, 2, 11, 1),
    Sketcher.Constraint("Coincident", 11, 2, 12, 1),
    Sketcher.Constraint("Coincident", 12, 2, 13, 1),
    Sketcher.Constraint("Coincident", 13, 2, 10, 1),
    Sketcher.Constraint("Coincident", 15, 2, 16, 1),
    Sketcher.Constraint("Coincident", 16, 2, 17, 1),
    Sketcher.Constraint("Coincident", 17, 2, 18, 1),
    Sketcher.Constraint("Coincident", 18, 2, 15, 1),
    Sketcher.Constraint("Coincident", 19, 2, 20, 1),
    Sketcher.Constraint("Coincident", 20, 2, 21, 1),
    Sketcher.Constraint("Coincident", 21, 2, 22, 1),
    Sketcher.Constraint("Coincident", 22, 2, 19, 1),
    Sketcher.Constraint("Horizontal", 0),
    Sketcher.Constraint("Vertical", 1),
    Sketcher.Constraint("Horizontal", 2),
    Sketcher.Constraint("Vertical", 3),
    Sketcher.Constraint("Horizontal", 5),
    Sketcher.Constraint("Vertical", 6),
    Sketcher.Constraint("Horizontal", 7),
    Sketcher.Constraint("Vertical", 8),
    Sketcher.Constraint("Horizontal", 10),
    Sketcher.Constraint("Vertical", 11),
    Sketcher.Constraint("Horizontal", 12),
    Sketcher.Constraint("Vertical", 13),
    Sketcher.Constraint("Horizontal", 15),
    Sketcher.Constraint("Vertical", 16),
    Sketcher.Constraint("Horizontal", 17),
    Sketcher.Constraint("Vertical", 18),
    Sketcher.Constraint("Horizontal", 19),
    Sketcher.Constraint("Vertical", 20),
    Sketcher.Constraint("Horizontal", 21),
    Sketcher.Constraint("Vertical", 22),
    Sketcher.Constraint("Equal", 4, 9),
    Sketcher.Constraint("Equal", 9, 14),
    Sketcher.Constraint("Equal", 14, 23),
    Sketcher.Constraint("Symmetric", 9, 3, 14, 3, -1, 1),
    Sketcher.Constraint("Symmetric", 4, 3, 23, 3, -1, 1),
    Sketcher.Constraint("Symmetric", 0, 2, 2, 2, -1, 1),
    Sketcher.Constraint("Symmetric", 4, 3, 9, 3, -2),
    Sketcher.Constraint("Symmetric", 6, 2, 12, 2, -2),
    Sketcher.Constraint("Horizontal", 8, 2, 10, 2),
    Sketcher.Constraint("Vertical", 13, 2, 21, 2),
    Sketcher.Constraint("Equal", 2, 1),
    Sketcher.Constraint("Equal", 21, 16),
    Sketcher.Constraint("Diameter", 4, 2.5),
    Sketcher.Constraint("DistanceX", 15, 2, 15, 1, 11.0),
    Sketcher.Constraint("DistanceY", 6, 1, 6, 2, 8.0),
    Sketcher.Constraint("DistanceY", 20, 1, 20, 2, 7.0),
    Sketcher.Constraint("DistanceX", 0, 2, 0, 1, 32.4),
    Sketcher.Constraint("DistanceX", 5, 2, 5, 1, 4.5),
    Sketcher.Constraint("DistanceX", 10, 2, 10, 1, 4.4),
    Sketcher.Constraint("DistanceX", 19, 2, 19, 1, 5.5),
    Sketcher.Constraint("DistanceX", 4, 3, -1, 1, 14.0),
    Sketcher.Constraint("DistanceY", 4, 3, -1, 1, 14.0),
    Sketcher.Constraint("DistanceY", 11, 2, 19, 2, 5.0),
    Sketcher.Constraint("DistanceX", 5, 2, -1, 1, 16.1),
    Sketcher.Constraint("DistanceY", 5, 2, -1, 1, 9.5),
    Sketcher.Constraint("DistanceX", 15, 2, -1, 1, 10.5),
    Sketcher.Constraint("DistanceY", -1, 1, 15, 2, 10.6),
])
pocket1 = body.newObject("PartDesign::Pocket", "Pocket")
pocket1.Profile = sketch6
pocket1.Length = 2

doc.recompute()
